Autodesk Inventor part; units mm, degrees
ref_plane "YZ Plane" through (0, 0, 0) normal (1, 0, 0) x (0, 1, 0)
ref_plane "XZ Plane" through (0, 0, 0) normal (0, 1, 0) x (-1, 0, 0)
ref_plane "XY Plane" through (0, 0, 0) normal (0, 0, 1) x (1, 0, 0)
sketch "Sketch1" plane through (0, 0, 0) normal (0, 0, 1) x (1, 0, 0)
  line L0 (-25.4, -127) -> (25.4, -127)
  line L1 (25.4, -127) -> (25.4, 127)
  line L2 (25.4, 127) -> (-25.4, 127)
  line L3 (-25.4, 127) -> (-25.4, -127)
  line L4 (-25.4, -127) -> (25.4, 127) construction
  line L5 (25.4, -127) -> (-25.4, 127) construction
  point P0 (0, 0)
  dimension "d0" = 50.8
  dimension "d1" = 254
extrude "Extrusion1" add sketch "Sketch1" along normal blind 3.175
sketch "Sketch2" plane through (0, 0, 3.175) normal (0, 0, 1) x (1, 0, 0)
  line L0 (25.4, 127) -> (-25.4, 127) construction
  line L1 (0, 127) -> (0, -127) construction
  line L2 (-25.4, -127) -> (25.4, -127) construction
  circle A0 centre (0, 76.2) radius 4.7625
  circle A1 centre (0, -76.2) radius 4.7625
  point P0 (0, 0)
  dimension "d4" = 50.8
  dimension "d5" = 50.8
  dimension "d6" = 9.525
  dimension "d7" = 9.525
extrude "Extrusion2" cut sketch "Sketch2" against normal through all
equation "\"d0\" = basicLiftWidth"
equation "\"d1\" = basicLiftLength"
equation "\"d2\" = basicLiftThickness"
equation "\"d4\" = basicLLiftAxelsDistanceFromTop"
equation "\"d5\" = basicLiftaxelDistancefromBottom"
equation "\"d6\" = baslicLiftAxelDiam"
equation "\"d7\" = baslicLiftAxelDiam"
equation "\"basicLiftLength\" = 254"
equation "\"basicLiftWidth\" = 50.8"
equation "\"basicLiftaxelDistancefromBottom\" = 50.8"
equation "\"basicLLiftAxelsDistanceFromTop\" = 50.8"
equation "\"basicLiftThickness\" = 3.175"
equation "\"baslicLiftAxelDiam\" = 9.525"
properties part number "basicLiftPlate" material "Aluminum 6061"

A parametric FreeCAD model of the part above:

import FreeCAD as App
import Part
import Sketcher
from FreeCAD import Vector
Q = App.Units.Quantity


def add_polygon(sketch, points):
    """Adds a closed chain of lines whose ends are joined by coincident constraints."""
    first, n = sketch.GeometryCount, len(points)
    for a, b in zip(points, points[1:] + points[:1]):
        sketch.addGeometry(Part.LineSegment(App.Vector(*a, 0), App.Vector(*b, 0)), False)
    for i in range(n):
        sketch.addConstraint(Sketcher.Constraint("Coincident", first + i, 2, first + (i + 1) % n, 1))

doc = App.newDocument("Part")
body = doc.addObject("PartDesign::Body", "Body")

sketch1 = body.newObject("Sketcher::SketchObject", "Sketch")
sketch1.AttachmentSupport = (doc.getObject("XY_Plane"), [""])
sketch1.MapMode = "FlatFace"
add_polygon(sketch1, [(-25.4, 127), (-25.4, -127), (25.4, -127), (25.4, 127)])
sketch1.addConstraint(Sketcher.Constraint("Vertical", 0))
sketch1.addConstraint(Sketcher.Constraint("Horizontal", 1))
sketch1.addConstraint(Sketcher.Constraint("Vertical", 2))
sketch1.addConstraint(Sketcher.Constraint("Horizontal", 3))
sketch1.addConstraint(Sketcher.Constraint("Symmetric", 0, 2, 2, 2, -1, 1))
sketch1.addConstraint(Sketcher.Constraint("DistanceX", 1, 1, 1, 2, Q("2 in")))
sketch1.addConstraint(Sketcher.Constraint("DistanceY", 0, 2, 0, 1, Q("10 in")))
pad1 = body.newObject("PartDesign::Pad", "Pad")
pad1.Profile = sketch1
pad1.Length = Q("0.125 in")

sketch2 = body.newObject("Sketcher::SketchObject", "Sketch001")
sketch2.AttachmentSupport = (doc.getObject("XY_Plane"), [""])
sketch2.MapMode = "FlatFace"
sketch2.AttachmentOffset = App.Placement(Vector(0, 0, 0.125 * 25.4), App.Rotation())
sketch2.addGeometry(Part.Circle(Vector(0, 76.2, 0), Vector(0, 0, 1), 4.7625), False)
sketch2.addGeometry(Part.Circle(Vector(0, -76.2, 0), Vector(0, 0, 1), 4.7625), False)
sketch2.addConstraint(Sketcher.Constraint("Equal", 0, 1))
sketch2.addConstraint(Sketcher.Constraint("Symmetric", 0, 3, 1, 3, -1, 1))
sketch2.addConstraint(Sketcher.Constraint("PointOnObject", 0, 3, -2))
sketch2.addConstraint(Sketcher.Constraint("Diameter", 0, Q("0.375 in")))
sketch2.addConstraint(Sketcher.Constraint("DistanceY", -1, 1, 0, 3, Q("3 in")))
pocket1 = body.newObject("PartDesign::Pocket", "Pocket")
pocket1.Profile = sketch2
pocket1.Type = "ThroughAll"

doc.recompute()
